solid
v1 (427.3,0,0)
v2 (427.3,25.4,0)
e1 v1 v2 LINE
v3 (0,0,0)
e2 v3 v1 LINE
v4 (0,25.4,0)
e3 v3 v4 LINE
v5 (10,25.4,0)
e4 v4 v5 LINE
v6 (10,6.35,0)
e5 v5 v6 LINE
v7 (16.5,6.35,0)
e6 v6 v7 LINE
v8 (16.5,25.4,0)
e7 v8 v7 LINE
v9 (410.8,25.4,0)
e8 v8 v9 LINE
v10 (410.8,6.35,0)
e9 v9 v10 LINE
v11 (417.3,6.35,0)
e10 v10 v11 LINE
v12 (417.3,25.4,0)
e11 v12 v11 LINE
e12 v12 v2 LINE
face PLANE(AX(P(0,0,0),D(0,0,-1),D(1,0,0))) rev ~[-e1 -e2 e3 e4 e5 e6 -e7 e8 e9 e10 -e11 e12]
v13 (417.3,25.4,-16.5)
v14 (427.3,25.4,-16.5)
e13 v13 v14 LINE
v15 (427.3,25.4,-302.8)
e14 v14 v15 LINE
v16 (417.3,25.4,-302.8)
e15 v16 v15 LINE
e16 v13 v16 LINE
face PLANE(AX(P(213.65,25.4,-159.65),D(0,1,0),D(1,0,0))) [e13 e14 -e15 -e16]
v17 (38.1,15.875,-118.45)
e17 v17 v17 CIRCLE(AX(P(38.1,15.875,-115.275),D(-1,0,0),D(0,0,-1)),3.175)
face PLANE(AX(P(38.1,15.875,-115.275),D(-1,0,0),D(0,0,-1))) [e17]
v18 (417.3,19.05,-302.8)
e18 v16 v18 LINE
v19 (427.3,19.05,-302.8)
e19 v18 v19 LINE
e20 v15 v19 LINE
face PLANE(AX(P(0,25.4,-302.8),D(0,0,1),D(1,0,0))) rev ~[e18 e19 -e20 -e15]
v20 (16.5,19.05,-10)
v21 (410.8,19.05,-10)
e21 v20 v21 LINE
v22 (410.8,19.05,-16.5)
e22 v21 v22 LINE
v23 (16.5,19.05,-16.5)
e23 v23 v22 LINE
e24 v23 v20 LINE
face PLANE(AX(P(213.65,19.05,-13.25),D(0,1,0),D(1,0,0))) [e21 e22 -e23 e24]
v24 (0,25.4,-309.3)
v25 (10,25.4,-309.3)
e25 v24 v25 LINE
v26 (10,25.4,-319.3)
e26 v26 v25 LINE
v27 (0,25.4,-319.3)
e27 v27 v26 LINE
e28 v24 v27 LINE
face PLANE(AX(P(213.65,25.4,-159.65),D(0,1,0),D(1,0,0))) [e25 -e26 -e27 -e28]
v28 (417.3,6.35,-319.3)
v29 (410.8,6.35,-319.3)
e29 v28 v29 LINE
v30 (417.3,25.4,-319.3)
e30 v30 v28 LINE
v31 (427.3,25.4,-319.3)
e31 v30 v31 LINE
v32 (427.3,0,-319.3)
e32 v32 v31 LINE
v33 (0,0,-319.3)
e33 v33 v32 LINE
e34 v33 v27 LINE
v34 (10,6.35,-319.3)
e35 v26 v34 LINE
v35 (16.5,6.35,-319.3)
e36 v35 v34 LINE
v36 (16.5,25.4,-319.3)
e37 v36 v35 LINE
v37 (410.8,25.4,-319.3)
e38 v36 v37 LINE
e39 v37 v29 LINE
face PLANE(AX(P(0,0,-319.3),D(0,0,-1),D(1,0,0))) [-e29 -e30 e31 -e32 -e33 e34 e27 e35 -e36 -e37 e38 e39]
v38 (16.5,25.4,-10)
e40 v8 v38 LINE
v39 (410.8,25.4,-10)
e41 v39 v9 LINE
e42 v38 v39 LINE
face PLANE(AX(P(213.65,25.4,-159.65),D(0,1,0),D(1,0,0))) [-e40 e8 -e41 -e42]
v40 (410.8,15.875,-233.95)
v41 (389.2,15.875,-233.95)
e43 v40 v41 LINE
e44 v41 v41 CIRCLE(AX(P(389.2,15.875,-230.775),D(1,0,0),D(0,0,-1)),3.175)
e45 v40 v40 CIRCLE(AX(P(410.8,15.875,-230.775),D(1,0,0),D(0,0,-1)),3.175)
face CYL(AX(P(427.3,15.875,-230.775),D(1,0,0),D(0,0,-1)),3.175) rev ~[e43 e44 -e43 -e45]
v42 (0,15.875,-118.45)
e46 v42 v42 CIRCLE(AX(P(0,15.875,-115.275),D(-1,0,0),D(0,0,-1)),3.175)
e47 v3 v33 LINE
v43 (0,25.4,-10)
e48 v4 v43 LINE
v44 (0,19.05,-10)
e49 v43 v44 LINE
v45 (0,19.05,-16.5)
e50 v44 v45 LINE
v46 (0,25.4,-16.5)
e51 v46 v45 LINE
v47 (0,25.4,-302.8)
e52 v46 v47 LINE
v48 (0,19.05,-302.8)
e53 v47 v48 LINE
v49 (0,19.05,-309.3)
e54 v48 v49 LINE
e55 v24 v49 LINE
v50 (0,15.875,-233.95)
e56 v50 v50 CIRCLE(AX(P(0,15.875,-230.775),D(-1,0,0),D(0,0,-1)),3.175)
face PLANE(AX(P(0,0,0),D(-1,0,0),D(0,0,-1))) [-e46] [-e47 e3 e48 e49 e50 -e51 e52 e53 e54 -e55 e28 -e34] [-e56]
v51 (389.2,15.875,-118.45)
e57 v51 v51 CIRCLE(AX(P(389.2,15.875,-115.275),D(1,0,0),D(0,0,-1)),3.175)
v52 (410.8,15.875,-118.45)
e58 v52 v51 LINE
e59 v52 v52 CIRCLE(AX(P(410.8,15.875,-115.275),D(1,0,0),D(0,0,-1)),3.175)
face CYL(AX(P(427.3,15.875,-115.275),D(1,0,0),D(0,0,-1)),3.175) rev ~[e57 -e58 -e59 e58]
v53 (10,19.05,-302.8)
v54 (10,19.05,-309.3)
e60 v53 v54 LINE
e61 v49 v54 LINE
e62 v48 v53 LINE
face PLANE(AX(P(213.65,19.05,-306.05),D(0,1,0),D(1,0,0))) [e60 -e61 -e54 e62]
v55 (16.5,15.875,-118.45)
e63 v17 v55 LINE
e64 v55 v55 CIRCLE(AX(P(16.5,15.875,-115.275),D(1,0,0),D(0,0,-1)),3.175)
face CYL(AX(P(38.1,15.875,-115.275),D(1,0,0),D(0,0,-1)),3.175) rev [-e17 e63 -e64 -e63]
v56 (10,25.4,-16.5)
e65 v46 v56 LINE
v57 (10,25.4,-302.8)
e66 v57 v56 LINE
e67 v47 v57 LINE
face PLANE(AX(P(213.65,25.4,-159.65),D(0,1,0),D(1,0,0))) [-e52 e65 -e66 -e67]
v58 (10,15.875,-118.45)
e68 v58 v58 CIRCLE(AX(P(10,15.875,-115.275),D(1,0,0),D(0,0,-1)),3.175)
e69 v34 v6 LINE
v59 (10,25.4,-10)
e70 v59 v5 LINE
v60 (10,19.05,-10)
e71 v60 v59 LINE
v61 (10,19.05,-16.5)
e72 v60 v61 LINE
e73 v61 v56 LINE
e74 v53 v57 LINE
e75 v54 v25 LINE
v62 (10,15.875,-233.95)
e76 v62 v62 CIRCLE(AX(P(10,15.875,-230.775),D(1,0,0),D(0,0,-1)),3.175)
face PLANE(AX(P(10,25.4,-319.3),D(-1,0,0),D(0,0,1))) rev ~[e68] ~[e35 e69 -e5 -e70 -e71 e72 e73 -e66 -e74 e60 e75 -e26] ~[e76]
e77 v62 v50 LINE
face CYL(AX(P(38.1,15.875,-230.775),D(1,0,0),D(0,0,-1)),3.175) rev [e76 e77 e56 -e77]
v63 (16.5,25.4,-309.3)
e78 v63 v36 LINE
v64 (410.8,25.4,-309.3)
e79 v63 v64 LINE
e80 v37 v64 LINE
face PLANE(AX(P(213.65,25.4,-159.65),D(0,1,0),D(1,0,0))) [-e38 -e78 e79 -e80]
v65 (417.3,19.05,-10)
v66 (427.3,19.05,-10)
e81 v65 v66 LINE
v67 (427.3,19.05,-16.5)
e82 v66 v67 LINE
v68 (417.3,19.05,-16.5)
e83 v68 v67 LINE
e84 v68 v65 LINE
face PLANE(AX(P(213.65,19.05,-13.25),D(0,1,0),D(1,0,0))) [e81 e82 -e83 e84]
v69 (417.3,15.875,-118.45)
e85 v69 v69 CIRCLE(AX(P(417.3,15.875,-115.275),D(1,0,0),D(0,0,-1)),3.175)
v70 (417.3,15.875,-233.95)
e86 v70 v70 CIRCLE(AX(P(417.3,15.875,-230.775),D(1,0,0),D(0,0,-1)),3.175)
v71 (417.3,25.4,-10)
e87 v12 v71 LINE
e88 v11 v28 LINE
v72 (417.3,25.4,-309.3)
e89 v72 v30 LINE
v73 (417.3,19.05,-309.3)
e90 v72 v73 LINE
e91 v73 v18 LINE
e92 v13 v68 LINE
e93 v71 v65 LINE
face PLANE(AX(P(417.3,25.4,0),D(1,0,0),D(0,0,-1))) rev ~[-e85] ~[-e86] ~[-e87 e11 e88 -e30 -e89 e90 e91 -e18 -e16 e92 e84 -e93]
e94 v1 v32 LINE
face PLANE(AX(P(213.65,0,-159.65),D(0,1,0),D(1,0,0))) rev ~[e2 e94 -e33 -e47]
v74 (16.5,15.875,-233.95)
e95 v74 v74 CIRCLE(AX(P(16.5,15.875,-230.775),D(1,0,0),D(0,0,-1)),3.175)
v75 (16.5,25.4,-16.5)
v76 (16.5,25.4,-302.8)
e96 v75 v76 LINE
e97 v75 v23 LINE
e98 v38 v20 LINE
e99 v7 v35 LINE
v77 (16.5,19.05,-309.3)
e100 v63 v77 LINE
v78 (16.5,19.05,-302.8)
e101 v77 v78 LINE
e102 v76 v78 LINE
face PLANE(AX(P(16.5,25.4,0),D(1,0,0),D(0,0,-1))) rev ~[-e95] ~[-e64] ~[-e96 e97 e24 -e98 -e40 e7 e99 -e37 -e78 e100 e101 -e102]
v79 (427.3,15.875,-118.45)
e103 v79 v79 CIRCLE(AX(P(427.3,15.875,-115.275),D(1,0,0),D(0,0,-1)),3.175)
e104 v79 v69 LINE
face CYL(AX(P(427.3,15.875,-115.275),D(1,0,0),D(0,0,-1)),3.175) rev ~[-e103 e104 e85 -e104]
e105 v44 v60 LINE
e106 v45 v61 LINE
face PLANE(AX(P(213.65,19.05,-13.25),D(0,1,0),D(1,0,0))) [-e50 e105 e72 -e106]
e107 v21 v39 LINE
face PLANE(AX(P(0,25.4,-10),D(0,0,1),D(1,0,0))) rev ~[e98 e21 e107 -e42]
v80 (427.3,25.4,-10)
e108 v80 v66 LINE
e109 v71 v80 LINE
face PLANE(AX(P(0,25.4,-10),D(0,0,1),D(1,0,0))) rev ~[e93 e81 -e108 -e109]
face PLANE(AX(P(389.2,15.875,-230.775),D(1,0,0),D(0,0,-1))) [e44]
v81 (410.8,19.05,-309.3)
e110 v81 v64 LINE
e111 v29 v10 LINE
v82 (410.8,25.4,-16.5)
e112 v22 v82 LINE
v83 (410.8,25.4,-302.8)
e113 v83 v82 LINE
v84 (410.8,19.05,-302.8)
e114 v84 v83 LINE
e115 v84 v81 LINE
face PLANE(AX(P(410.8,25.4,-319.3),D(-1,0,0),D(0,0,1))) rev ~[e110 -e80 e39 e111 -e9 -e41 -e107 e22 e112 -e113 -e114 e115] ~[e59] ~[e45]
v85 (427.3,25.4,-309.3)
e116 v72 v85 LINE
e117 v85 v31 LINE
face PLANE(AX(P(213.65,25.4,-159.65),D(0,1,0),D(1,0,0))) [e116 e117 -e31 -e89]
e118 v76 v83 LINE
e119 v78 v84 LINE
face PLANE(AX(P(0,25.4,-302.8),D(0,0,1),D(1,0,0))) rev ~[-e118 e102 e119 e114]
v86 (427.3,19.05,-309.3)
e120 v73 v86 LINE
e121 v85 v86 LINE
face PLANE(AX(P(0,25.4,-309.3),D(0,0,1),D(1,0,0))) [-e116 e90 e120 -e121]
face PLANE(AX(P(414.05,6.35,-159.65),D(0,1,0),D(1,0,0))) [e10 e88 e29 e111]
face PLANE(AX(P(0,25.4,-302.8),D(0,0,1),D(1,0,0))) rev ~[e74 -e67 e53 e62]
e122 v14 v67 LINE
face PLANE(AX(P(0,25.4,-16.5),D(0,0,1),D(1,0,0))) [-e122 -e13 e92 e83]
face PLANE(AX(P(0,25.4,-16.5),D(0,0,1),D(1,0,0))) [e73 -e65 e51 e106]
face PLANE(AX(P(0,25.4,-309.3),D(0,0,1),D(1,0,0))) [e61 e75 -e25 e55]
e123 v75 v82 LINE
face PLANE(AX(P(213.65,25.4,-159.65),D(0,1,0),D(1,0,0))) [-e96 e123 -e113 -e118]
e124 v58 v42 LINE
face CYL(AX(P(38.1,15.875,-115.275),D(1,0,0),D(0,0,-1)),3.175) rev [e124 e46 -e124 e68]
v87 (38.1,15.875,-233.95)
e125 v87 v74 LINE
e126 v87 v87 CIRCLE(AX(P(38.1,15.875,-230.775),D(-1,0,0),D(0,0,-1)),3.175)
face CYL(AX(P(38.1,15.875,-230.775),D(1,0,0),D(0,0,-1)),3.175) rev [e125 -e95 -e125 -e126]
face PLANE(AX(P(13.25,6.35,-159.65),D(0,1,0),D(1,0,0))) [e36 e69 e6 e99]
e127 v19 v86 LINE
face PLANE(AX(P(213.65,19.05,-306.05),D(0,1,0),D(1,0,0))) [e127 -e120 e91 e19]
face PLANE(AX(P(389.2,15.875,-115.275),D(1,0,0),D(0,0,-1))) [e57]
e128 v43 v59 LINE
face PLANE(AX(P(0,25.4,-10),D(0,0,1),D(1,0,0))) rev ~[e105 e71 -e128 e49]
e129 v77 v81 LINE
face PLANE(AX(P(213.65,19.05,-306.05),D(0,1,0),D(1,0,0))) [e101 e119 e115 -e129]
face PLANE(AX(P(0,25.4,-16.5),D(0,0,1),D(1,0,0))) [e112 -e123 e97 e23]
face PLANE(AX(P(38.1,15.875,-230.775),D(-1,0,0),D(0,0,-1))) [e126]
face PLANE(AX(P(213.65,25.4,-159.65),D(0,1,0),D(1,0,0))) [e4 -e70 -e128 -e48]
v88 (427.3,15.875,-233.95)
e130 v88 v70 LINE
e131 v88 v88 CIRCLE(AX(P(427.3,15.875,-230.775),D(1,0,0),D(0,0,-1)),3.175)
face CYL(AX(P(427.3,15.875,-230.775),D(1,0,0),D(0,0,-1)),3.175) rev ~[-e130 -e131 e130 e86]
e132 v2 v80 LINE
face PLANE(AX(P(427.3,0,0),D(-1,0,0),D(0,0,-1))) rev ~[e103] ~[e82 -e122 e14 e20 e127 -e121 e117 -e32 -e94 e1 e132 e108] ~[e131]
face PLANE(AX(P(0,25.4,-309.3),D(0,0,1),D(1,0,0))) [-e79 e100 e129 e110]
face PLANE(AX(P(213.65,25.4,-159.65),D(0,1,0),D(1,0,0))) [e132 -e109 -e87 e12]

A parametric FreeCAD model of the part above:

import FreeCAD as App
import Part
import Sketcher

V = App.Vector
Q = App.Units.Quantity

doc = App.newDocument("Part")
body = doc.addObject("PartDesign::Body", "Body")

# Sketch on XZ plane
sketch1 = body.newObject("Sketcher::SketchObject", "Sketch")
sketch1.AttachmentSupport = (doc.getObject("XZ_Plane"), [""])
sketch1.MapMode = "FlatFace"
sketch1.addGeometry([
    Part.LineSegment(V(0, -319, 0), V(0, 0, 0)),
    Part.LineSegment(V(0, 0, 0), V(427, 0, 0)),
    Part.LineSegment(V(427, 0, 0), V(427, -319, 0)),
    Part.LineSegment(V(427, -319, 0), V(0, -319, 0)),
], False)
sketch1.addConstraint([
    Sketcher.Constraint("Coincident", 0, 2, 1, 1),
    Sketcher.Constraint("Coincident", 1, 2, 2, 1),
    Sketcher.Constraint("Coincident", 2, 2, 3, 1),
    Sketcher.Constraint("Coincident", 3, 2, 0, 1),
    Sketcher.Constraint("Vertical", 0),
    Sketcher.Constraint("Horizontal", 1),
    Sketcher.Constraint("Vertical", 2),
    Sketcher.Constraint("Horizontal", 3),
    Sketcher.Constraint("Coincident", 0, 2, -1, 1),
    Sketcher.Constraint("DistanceX", 1, 1, 1, 2, Q("427.3 mm")),
    Sketcher.Constraint("DistanceY", 0, 1, 0, 2, Q("319.3 mm")),
])
pad1 = body.newObject("PartDesign::Pad", "Pad")
pad1.Profile = sketch1
pad1.Length = Q("1 in")
pad1.Reversed = True

# Sketch on XZ plane
sketch2 = body.newObject("Sketcher::SketchObject", "Sketch001")
sketch2.AttachmentSupport = (doc.getObject("XZ_Plane"), [""])
sketch2.MapMode = "FlatFace"
sketch2.AttachmentOffset = App.Placement(V(0, 0, -1 * 25.4), App.Rotation())
sketch2.addGeometry([
    Part.LineSegment(V(411, 0, 0), V(417, 0, 0)),  # 0
    Part.LineSegment(V(417, 0, 0), V(417, -319, 0)),  # 1
    Part.LineSegment(V(417, -319, 0), V(411, -319, 0)),  # 2
    Part.LineSegment(V(411, -319, 0), V(411, 0, 0)),  # 3
    Part.LineSegment(V(16, -319, 0), V(10, -319, 0)),  # 4
    Part.LineSegment(V(10, -319, 0), V(10, 0, 0)),  # 5
    Part.LineSegment(V(10, 0, 0), V(16, 0, 0)),  # 6
    Part.LineSegment(V(16, 0, 0), V(16, -319, 0)),  # 7
], False)
sketch2.addConstraint([
    Sketcher.Constraint("Coincident", 0, 2, 1, 1),
    Sketcher.Constraint("Coincident", 1, 2, 2, 1),
    Sketcher.Constraint("Coincident", 2, 2, 3, 1),
    Sketcher.Constraint("Coincident", 3, 2, 0, 1),
    Sketcher.Constraint("Coincident", 4, 2, 5, 1),
    Sketcher.Constraint("Coincident", 5, 2, 6, 1),
    Sketcher.Constraint("Coincident", 6, 2, 7, 1),
    Sketcher.Constraint("Coincident", 7, 2, 4, 1),
    Sketcher.Constraint("Horizontal", 0),
    Sketcher.Constraint("Vertical", 1),
    Sketcher.Constraint("Horizontal", 2),
    Sketcher.Constraint("Vertical", 3),
    Sketcher.Constraint("Horizontal", 4),
    Sketcher.Constraint("Vertical", 5),
    Sketcher.Constraint("Horizontal", 6),
    Sketcher.Constraint("Vertical", 7),
    Sketcher.Constraint("PointOnObject", 0, 2, -1),
    Sketcher.Constraint("PointOnObject", 5, 2, -1),
    Sketcher.Constraint("Horizontal", 2, 2, 4, 2),
    Sketcher.Constraint("Equal", 2, 4),
    Sketcher.Constraint("DistanceX", 0, 1, 0, 2, Q("6.5 mm")),
    Sketcher.Constraint("DistanceY", 1, 2, 1, 1, Q("319.3 mm")),
    Sketcher.Constraint("DistanceX", -1, 1, 0, 2, Q("417.3 mm")),
    Sketcher.Constraint("DistanceX", -1, 1, 4, 2, Q("10 mm")),
])
pocket1 = body.newObject("PartDesign::Pocket", "Pocket")
pocket1.Profile = sketch2
pocket1.Length = Q("0.75 in")
pocket1.Reversed = True

# Sketch on XZ plane
sketch3 = body.newObject("Sketcher::SketchObject", "Sketch002")
sketch3.AttachmentSupport = (doc.getObject("XZ_Plane"), [""])
sketch3.MapMode = "FlatFace"
sketch3.AttachmentOffset = App.Placement(V(0, 0, -1 * 25.4), App.Rotation())
sketch3.addGeometry([
    Part.LineSegment(V(0, -16, 0), V(0, -10, 0)),  # 0
    Part.LineSegment(V(0, -10, 0), V(427, -10, 0)),  # 1
    Part.LineSegment(V(427, -10, 0), V(427, -16, 0)),  # 2
    Part.LineSegment(V(427, -16, 0), V(0, -16, 0)),  # 3
    Part.LineSegment(V(0, -309, 0), V(0, -303, 0)),  # 4
    Part.LineSegment(V(0, -303, 0), V(427, -303, 0)),  # 5
    Part.LineSegment(V(427, -303, 0), V(427, -309, 0)),  # 6
    Part.LineSegment(V(427, -309, 0), V(0, -309, 0)),  # 7
], False)
sketch3.addConstraint([
    Sketcher.Constraint("Coincident", 0, 2, 1, 1),
    Sketcher.Constraint("Coincident", 1, 2, 2, 1),
    Sketcher.Constraint("Coincident", 2, 2, 3, 1),
    Sketcher.Constraint("Coincident", 3, 2, 0, 1),
    Sketcher.Constraint("Coincident", 4, 2, 5, 1),
    Sketcher.Constraint("Coincident", 5, 2, 6, 1),
    Sketcher.Constraint("Coincident", 6, 2, 7, 1),
    Sketcher.Constraint("Coincident", 7, 2, 4, 1),
    Sketcher.Constraint("Vertical", 0),
    Sketcher.Constraint("Horizontal", 1),
    Sketcher.Constraint("Vertical", 2),
    Sketcher.Constraint("Horizontal", 3),
    Sketcher.Constraint("Vertical", 4),
    Sketcher.Constraint("Horizontal", 5),
    Sketcher.Constraint("Vertical", 6),
    Sketcher.Constraint("Horizontal", 7),
    Sketcher.Constraint("PointOnObject", 0, 2, -2),
    Sketcher.Constraint("PointOnObject", 4, 2, -2),
    Sketcher.Constraint("Vertical", 2, 2, 5, 2),
    Sketcher.Constraint("Equal", 2, 4),
    Sketcher.Constraint("DistanceX", 1, 1, 1, 2, Q("427.3 mm")),
    Sketcher.Constraint("DistanceY", 0, 1, 0, 2, Q("6.5 mm")),
    Sketcher.Constraint("DistanceY", 0, 2, -1, 1, Q("10 mm")),
    Sketcher.Constraint("DistanceY", 4, 2, -1, 1, Q("302.8 mm")),
])
pocket2 = body.newObject("PartDesign::Pocket", "Pocket001")
pocket2.Profile = sketch3
pocket2.Length = Q("0.25 in")
pocket2.Reversed = True

# Sketch on YZ plane
sketch4 = body.newObject("Sketcher::SketchObject", "Sketch003")
sketch4.AttachmentSupport = (doc.getObject("YZ_Plane"), [""])
sketch4.MapMode = "FlatFace"
sketch4.AttachmentOffset = App.Placement(V(0, 0, 427.3), App.Rotation())
sketch4.addGeometry([
    Part.Circle(V(15.9, -115.3, 0), V(0, 0, 1), 3.2),
    Part.Circle(V(15.9, -230.8, 0), V(0, 0, 1), 3.2),
], False)
sketch4.addConstraint([
    Sketcher.Constraint("Equal", 0, 1),
    Sketcher.Constraint("Vertical", 0, 3, 1, 3),
    Sketcher.Constraint("Diameter", 0, Q("0.25 in")),
    Sketcher.Constraint("DistanceX", -1, 1, 0, 3, Q("0.625 in")),
    Sketcher.Constraint("DistanceY", 0, 3, -1, 1, Q("115.275 mm")),
    Sketcher.Constraint("DistanceY", 1, 3, -1, 1, Q("230.775 mm")),
])
pocket3 = body.newObject("PartDesign::Pocket", "Pocket002")
pocket3.Profile = sketch4
pocket3.Length = Q("1.5 in")

# Sketch on YZ plane
sketch5 = body.newObject("Sketcher::SketchObject", "Sketch004")
sketch5.AttachmentSupport = (doc.getObject("YZ_Plane"), [""])
sketch5.MapMode = "FlatFace"
sketch5.AttachmentOffset = App.Placement(V(0, 0, 1.5 * 25.4), App.Rotation())
sketch5.addGeometry([
    Part.Circle(V(15.9, -230.8, 0), V(0, 0, 1), 3.2),
    Part.Circle(V(15.9, -115.3, 0), V(0, 0, 1), 3.2),
], False)
sketch5.addConstraint([
    Sketcher.Constraint("Equal", 0, 1),
    Sketcher.Constraint("Vertical", 0, 3, 1, 3),
    Sketcher.Constraint("Diameter", 0, Q("0.25 in")),
    Sketcher.Constraint("DistanceX", -1, 1, 0, 3, Q("0.625 in")),
    Sketcher.Constraint("DistanceY", 0, 3, -1, 1, Q("230.775 mm")),
    Sketcher.Constraint("DistanceY", 1, 3, -1, 1, Q("115.275 mm")),
])
pocket4 = body.newObject("PartDesign::Pocket", "Pocket003")
pocket4.Profile = sketch5
pocket4.Length = Q("1.5 in")

doc.recompute()
